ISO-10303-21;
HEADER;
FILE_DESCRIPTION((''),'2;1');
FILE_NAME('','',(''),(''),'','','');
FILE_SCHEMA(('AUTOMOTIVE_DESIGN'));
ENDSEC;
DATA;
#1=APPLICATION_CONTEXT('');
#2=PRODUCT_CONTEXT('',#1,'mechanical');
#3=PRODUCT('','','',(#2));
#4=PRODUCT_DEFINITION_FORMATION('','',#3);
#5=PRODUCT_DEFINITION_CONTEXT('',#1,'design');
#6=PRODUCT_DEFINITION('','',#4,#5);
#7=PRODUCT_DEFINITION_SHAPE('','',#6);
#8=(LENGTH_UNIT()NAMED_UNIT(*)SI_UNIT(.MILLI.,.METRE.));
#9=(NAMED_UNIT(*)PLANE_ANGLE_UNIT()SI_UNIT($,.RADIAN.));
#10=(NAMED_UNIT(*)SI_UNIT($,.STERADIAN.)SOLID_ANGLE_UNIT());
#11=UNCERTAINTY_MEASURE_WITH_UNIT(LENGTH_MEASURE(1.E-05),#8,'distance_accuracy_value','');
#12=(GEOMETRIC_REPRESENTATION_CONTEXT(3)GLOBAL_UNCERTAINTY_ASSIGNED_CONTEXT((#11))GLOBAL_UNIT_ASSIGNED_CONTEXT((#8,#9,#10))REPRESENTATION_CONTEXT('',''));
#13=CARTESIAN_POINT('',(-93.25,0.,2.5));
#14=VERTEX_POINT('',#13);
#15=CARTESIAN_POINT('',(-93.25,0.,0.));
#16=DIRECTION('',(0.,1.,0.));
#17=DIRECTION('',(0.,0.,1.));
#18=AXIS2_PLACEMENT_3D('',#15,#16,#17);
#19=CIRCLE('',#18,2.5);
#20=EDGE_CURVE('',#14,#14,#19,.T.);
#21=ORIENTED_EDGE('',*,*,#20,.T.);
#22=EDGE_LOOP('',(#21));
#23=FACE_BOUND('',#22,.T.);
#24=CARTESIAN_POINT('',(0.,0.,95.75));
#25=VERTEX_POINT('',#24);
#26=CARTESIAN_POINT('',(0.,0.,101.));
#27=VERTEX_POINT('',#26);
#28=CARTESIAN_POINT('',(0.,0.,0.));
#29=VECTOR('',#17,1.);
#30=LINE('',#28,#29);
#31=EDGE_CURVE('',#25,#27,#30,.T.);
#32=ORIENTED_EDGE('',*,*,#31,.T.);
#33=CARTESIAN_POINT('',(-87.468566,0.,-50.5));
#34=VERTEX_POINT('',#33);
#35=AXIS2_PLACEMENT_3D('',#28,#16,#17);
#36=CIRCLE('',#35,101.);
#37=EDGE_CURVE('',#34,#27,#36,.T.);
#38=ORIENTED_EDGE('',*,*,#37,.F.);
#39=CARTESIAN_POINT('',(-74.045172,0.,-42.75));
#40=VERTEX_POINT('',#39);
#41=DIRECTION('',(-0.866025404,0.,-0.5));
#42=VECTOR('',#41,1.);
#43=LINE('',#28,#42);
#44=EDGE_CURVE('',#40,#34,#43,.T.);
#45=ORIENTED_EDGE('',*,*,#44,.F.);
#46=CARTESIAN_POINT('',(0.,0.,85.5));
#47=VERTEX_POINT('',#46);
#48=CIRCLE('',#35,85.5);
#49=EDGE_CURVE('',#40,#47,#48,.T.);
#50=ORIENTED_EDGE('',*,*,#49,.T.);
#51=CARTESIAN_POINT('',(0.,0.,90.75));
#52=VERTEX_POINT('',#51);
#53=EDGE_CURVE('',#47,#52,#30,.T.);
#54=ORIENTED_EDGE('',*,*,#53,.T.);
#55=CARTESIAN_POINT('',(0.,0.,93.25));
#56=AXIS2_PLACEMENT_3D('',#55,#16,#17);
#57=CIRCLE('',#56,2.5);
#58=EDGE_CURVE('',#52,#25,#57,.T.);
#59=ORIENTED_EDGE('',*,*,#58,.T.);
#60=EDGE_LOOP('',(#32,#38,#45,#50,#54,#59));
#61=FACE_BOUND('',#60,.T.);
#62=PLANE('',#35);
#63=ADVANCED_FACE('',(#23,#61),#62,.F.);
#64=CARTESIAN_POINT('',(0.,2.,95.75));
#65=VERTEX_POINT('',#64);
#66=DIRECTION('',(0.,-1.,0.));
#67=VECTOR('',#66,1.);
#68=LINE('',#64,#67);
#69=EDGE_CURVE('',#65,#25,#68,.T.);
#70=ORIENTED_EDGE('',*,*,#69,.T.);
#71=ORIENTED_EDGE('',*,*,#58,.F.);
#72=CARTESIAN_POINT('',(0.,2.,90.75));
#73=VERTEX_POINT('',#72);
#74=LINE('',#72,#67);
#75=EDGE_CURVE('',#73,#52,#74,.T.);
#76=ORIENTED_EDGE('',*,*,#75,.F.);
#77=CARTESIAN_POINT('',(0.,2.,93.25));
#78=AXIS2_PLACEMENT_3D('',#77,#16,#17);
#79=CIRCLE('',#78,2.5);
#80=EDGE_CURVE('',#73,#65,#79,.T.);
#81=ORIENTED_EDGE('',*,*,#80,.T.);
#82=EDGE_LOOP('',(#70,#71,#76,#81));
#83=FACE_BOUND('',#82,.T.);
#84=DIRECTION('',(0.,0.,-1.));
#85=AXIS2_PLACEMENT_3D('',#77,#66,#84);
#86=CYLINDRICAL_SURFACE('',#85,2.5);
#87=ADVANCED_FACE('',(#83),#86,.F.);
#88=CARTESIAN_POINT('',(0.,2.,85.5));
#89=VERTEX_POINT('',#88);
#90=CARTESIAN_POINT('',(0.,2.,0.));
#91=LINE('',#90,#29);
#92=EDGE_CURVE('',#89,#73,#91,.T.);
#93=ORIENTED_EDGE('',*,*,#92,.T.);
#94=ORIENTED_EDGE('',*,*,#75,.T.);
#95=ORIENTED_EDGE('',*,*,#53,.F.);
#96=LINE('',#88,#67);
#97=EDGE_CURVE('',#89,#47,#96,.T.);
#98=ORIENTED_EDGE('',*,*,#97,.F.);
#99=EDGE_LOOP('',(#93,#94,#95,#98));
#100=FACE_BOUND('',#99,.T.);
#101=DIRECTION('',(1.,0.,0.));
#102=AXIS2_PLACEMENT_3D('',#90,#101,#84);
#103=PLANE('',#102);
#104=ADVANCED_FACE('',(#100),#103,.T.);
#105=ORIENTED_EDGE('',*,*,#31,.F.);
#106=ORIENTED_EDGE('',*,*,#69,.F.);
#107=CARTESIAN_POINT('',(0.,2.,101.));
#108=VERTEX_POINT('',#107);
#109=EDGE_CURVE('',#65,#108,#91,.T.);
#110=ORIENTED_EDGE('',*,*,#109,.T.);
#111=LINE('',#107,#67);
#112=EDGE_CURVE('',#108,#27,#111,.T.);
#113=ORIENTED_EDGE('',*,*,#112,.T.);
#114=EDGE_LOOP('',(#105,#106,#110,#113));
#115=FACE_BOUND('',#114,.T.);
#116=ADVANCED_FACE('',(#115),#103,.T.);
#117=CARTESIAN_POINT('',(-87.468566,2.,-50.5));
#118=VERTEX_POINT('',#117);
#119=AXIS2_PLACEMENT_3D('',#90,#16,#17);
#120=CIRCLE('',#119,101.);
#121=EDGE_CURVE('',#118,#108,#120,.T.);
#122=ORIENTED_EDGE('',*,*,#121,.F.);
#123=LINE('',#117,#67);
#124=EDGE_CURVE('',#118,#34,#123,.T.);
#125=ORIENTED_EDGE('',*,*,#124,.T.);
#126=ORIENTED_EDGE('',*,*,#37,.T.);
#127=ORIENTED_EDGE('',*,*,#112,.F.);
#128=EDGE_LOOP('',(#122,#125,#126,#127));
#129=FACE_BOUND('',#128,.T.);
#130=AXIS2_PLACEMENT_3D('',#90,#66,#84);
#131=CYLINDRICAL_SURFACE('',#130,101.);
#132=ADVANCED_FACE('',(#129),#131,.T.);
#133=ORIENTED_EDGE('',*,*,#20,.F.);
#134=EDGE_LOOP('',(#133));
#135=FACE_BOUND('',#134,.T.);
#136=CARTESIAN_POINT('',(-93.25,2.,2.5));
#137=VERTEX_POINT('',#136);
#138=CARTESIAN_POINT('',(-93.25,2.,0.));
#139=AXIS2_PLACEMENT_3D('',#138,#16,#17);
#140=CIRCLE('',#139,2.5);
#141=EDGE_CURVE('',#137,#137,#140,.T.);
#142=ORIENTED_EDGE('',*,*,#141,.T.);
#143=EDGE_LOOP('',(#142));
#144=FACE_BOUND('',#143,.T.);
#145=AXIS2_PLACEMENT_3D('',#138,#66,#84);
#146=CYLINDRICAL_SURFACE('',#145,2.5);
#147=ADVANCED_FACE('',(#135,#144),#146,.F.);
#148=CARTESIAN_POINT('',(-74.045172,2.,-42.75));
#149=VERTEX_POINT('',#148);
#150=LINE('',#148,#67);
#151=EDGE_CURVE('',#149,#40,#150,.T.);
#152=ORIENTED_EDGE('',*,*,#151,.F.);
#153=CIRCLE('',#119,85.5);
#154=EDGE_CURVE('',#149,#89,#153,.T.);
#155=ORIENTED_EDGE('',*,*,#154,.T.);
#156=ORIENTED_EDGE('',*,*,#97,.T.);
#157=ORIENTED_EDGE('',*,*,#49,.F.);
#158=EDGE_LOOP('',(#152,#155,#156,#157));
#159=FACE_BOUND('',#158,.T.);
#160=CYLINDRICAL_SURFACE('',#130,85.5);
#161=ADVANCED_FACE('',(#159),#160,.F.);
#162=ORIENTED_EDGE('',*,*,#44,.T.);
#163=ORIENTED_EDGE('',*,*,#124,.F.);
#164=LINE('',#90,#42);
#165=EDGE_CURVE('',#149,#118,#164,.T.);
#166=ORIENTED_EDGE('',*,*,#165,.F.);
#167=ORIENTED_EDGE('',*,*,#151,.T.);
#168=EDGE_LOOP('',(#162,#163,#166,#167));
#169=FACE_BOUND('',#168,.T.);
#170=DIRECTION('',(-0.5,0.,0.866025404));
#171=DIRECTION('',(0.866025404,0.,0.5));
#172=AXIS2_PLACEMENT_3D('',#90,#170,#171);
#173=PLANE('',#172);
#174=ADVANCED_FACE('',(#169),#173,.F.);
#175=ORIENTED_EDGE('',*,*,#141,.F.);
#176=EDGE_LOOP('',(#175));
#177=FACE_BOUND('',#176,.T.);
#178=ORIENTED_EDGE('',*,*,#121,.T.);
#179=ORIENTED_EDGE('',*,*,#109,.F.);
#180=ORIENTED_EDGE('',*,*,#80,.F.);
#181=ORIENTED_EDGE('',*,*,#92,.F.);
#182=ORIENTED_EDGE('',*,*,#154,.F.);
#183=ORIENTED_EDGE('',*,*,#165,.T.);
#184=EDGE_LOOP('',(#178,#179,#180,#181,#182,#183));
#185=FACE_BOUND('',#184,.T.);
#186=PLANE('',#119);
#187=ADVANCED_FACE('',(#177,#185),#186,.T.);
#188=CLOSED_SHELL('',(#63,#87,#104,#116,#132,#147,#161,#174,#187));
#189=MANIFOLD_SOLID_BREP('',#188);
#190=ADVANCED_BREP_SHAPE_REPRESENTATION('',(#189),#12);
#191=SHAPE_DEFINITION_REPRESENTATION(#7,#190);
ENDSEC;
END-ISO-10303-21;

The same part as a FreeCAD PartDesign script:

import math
import FreeCAD as App
import Part
import Sketcher
from FreeCAD import Vector
Q = App.Units.Quantity

doc = App.newDocument("Part")
params = doc.addObject("Spreadsheet::Sheet", "Params")
for row, (alias, value) in enumerate([
    ("sketch1_diameter", "202 mm"),
    ("sketch1_diameter2", "5 mm"),
    ("sketch1_diameter3", "171 mm"),
    ("pad1_length", "2 mm"),
    ("sketch2_diameter", "5 mm"),
    ("sketch2_radius", "101 mm"),
    ("sketch2_radius2", "85.5 mm"),
    ("pocket1_length", "2 mm"),
    ("sketch3_diameter", "5 mm"),
    ("sketch3_radius", "101 mm"),
    ("sketch3_radius2", "85.5 mm"),
    ("pocket2_length", "2 mm"),
], start=1):
    params.set(f"A{row}", alias)
    params.set(f"B{row}", "=" + value)
    params.setAlias(f"B{row}", alias)

body = doc.addObject("PartDesign::Body", "Body")

# Sketch on XZ plane
sketch1 = body.newObject("Sketcher::SketchObject", "Sketch")
sketch1.AttachmentSupport = (doc.getObject("XZ_Plane"), [""])
sketch1.MapMode = "FlatFace"
sketch1.addGeometry(Part.Circle(Vector(0, 0, 0), Vector(0, 0, 1), 101), False)
sketch1.addGeometry(Part.Circle(Vector(0, -93.2, 0), Vector(0, 0, 1), 2.5), False)
sketch1.addGeometry(Part.Circle(Vector(-93.2, 0, 0), Vector(0, 0, 1), 2.5), False)
sketch1.addGeometry(Part.Circle(Vector(93.2, 0, 0), Vector(0, 0, 1), 2.5), False)
sketch1.addGeometry(Part.Circle(Vector(0, 0, 0), Vector(0, 0, 1), 85.5), False)
sketch1.addGeometry(Part.Circle(Vector(0, 93.2, 0), Vector(0, 0, 1), 2.5), False)
sketch1.addConstraint(Sketcher.Constraint("Coincident", 0, 3, -1, 1))
sketch1.addConstraint(Sketcher.Constraint("Coincident", 4, 3, -1, 1))
sketch1.addConstraint(Sketcher.Constraint("Equal", 1, 2))
sketch1.addConstraint(Sketcher.Constraint("Equal", 2, 3))
sketch1.addConstraint(Sketcher.Constraint("Equal", 3, 5))
sketch1.addConstraint(Sketcher.Constraint("Symmetric", 2, 3, 3, 3, -1, 1))
sketch1.addConstraint(Sketcher.Constraint("Symmetric", 1, 3, 5, 3, -1, 1))
sketch1.addConstraint(Sketcher.Constraint("PointOnObject", 1, 3, -2))
sketch1.addConstraint(Sketcher.Constraint("PointOnObject", 2, 3, -1))
sketch1.addConstraint(Sketcher.Constraint("Diameter", 0, 202.0))
sketch1.addConstraint(Sketcher.Constraint("Diameter", 1, 5.0))
sketch1.addConstraint(Sketcher.Constraint("Diameter", 4, 171.0))
sketch1.addConstraint(Sketcher.Constraint("DistanceX", 2, 3, 3, 3, 186.5))
sketch1.addConstraint(Sketcher.Constraint("DistanceY", 1, 3, 5, 3, 186.5))
sketch1.setExpression("Constraints[9]", "Params.sketch1_diameter")
sketch1.setExpression("Constraints[10]", "Params.sketch1_diameter2")
sketch1.setExpression("Constraints[11]", "Params.sketch1_diameter3")
pad1 = body.newObject("PartDesign::Pad", "Pad")
pad1.Profile = sketch1
pad1.setExpression("Length", "Params.pad1_length")
pad1.Reversed = True

# Sketch on XZ plane
sketch2 = body.newObject("Sketcher::SketchObject", "Sketch001")
sketch2.AttachmentSupport = (doc.getObject("XZ_Plane"), [""])
sketch2.MapMode = "FlatFace"
sketch2.addGeometry(Part.LineSegment(Vector(87.5, -50.5, 0), Vector(74, -42.8, 0)), False)
sketch2.addGeometry(Part.ArcOfCircle(Part.Circle(Vector(0, 0, 0), Vector(0, 0, 1), 85.5), math.radians(-150), math.radians(-30)), False)
sketch2.addGeometry(Part.LineSegment(Vector(-74, -42.8, 0), Vector(-87.5, -50.5, 0)), False)
sketch2.addGeometry(Part.ArcOfCircle(Part.Circle(Vector(0, 0, 0), Vector(0, 0, 1), 101), math.radians(-150), math.radians(-30)), False)
sketch2.addGeometry(Part.Circle(Vector(0, -93.2, 0), Vector(0, 0, 1), 2.5), False)
sketch2.addConstraint(Sketcher.Constraint("Coincident", 0, 2, 1, 2))
sketch2.addConstraint(Sketcher.Constraint("Coincident", 1, 1, 2, 1))
sketch2.addConstraint(Sketcher.Constraint("Coincident", 2, 2, 3, 1))
sketch2.addConstraint(Sketcher.Constraint("Coincident", 3, 2, 0, 1))
sketch2.addConstraint(Sketcher.Constraint("Coincident", 1, 3, -1, 1))
sketch2.addConstraint(Sketcher.Constraint("Coincident", 3, 3, -1, 1))
sketch2.addConstraint(Sketcher.Constraint("PointOnObject", 4, 3, -2))
sketch2.addConstraint(Sketcher.Constraint("Horizontal", 0, 2, 1, 1))
sketch2.addConstraint(Sketcher.Constraint("Horizontal", 2, 2, 3, 2))
sketch2.addConstraint(Sketcher.Constraint("Diameter", 4, 5.0))
sketch2.addConstraint(Sketcher.Constraint("Radius", 3, 101.0))
sketch2.addConstraint(Sketcher.Constraint("Radius", 1, 85.5))
sketch2.addConstraint(Sketcher.Constraint("Angle", 0, Q("150 deg")))
sketch2.addConstraint(Sketcher.Constraint("DistanceY", 2, 2, -1, 1, 50.5))
sketch2.addConstraint(Sketcher.Constraint("DistanceY", 4, 3, 0, 2, 50.5))
sketch2.setExpression("Constraints[9]", "Params.sketch2_diameter")
sketch2.setExpression("Constraints[10]", "Params.sketch2_radius")
sketch2.setExpression("Constraints[11]", "Params.sketch2_radius2")
pocket1 = body.newObject("PartDesign::Pocket", "Pocket")
pocket1.Profile = sketch2
pocket1.setExpression("Length", "Params.pocket1_length")

# Sketch on XZ plane
sketch3 = body.newObject("Sketcher::SketchObject", "Sketch002")
sketch3.AttachmentSupport = (doc.getObject("XZ_Plane"), [""])
sketch3.MapMode = "FlatFace"
sketch3.addGeometry(Part.LineSegment(Vector(0, 90.8, 0), Vector(0, 85.5, 0)), False)
sketch3.addGeometry(Part.ArcOfCircle(Part.Circle(Vector(0, 0, 0), Vector(0, 0, 1), 85.5), math.radians(-30), math.radians(90)), False)
sketch3.addGeometry(Part.LineSegment(Vector(74, -42.8, 0), Vector(87.5, -50.5, 0)), False)
sketch3.addGeometry(Part.ArcOfCircle(Part.Circle(Vector(0, 0, 0), Vector(0, 0, 1), 101), math.radians(-30), math.radians(0)), False)
sketch3.addGeometry(Part.ArcOfCircle(Part.Circle(Vector(0, 0, 0), Vector(0, 0, 1), 101), math.radians(0), math.radians(90)), False)
sketch3.addGeometry(Part.LineSegment(Vector(0, 101, 0), Vector(0, 95.8, 0)), False)
sketch3.addGeometry(Part.ArcOfCircle(Part.Circle(Vector(0, 93.2, 0), Vector(0, 0, 1), 2.5), math.radians(0), math.radians(90)), False)
sketch3.addGeometry(Part.ArcOfCircle(Part.Circle(Vector(0, 93.2, 0), Vector(0, 0, 1), 2.5), math.radians(-90), math.radians(0)), False)
sketch3.addGeometry(Part.Circle(Vector(93.2, 0, 0), Vector(0, 0, 1), 2.5), False)
sketch3.addConstraint(Sketcher.Constraint("Coincident", 0, 2, 1, 2))
sketch3.addConstraint(Sketcher.Constraint("Coincident", 1, 1, 2, 1))
sketch3.addConstraint(Sketcher.Constraint("Coincident", 2, 2, 3, 1))
sketch3.addConstraint(Sketcher.Constraint("Tangent", 3, 2, 4, 1))
sketch3.addConstraint(Sketcher.Constraint("Coincident", 4, 2, 5, 1))
sketch3.addConstraint(Sketcher.Constraint("Coincident", 5, 2, 6, 2))
sketch3.addConstraint(Sketcher.Constraint("Tangent", 6, 1, 7, 2))
sketch3.addConstraint(Sketcher.Constraint("Coincident", 7, 1, 0, 1))
sketch3.addConstraint(Sketcher.Constraint("Vertical", 0))
sketch3.addConstraint(Sketcher.Constraint("Vertical", 5))
sketch3.addConstraint(Sketcher.Constraint("Coincident", 1, 3, -1, 1))
sketch3.addConstraint(Sketcher.Constraint("Coincident", 3, 3, -1, 1))
sketch3.addConstraint(Sketcher.Constraint("Equal", 3, 4))
sketch3.addConstraint(Sketcher.Constraint("Equal", 6, 7))
sketch3.addConstraint(Sketcher.Constraint("Equal", 7, 8))
sketch3.addConstraint(Sketcher.Constraint("PointOnObject", 6, 3, -2))
sketch3.addConstraint(Sketcher.Constraint("PointOnObject", 8, 3, -1))
sketch3.addConstraint(Sketcher.Constraint("PointOnObject", 0, 2, -2))
sketch3.addConstraint(Sketcher.Constraint("PointOnObject", 3, 2, -1))
sketch3.addConstraint(Sketcher.Constraint("PointOnObject", 4, 2, -2))
sketch3.addConstraint(Sketcher.Constraint("Horizontal", 7, 3, 6, 1))
sketch3.addConstraint(Sketcher.Constraint("Equal", 0, 5))
sketch3.addConstraint(Sketcher.Constraint("Diameter", 8, 5.0))
sketch3.addConstraint(Sketcher.Constraint("Radius", 3, 101.0))
sketch3.addConstraint(Sketcher.Constraint("Radius", 1, 85.5))
sketch3.addConstraint(Sketcher.Constraint("Angle", 2, Q("-30 deg")))
sketch3.addConstraint(Sketcher.Constraint("DistanceY", 2, 2, -1, 1, 50.5))
sketch3.addConstraint(Sketcher.Constraint("DistanceX", -1, 1, 8, 3, 93.25))
sketch3.setExpression("Constraints[22]", "Params.sketch3_diameter")
sketch3.setExpression("Constraints[23]", "Params.sketch3_radius")
sketch3.setExpression("Constraints[24]", "Params.sketch3_radius2")
pocket2 = body.newObject("PartDesign::Pocket", "Pocket001")
pocket2.Profile = sketch3
pocket2.setExpression("Length", "Params.pocket2_length")

doc.recompute()
